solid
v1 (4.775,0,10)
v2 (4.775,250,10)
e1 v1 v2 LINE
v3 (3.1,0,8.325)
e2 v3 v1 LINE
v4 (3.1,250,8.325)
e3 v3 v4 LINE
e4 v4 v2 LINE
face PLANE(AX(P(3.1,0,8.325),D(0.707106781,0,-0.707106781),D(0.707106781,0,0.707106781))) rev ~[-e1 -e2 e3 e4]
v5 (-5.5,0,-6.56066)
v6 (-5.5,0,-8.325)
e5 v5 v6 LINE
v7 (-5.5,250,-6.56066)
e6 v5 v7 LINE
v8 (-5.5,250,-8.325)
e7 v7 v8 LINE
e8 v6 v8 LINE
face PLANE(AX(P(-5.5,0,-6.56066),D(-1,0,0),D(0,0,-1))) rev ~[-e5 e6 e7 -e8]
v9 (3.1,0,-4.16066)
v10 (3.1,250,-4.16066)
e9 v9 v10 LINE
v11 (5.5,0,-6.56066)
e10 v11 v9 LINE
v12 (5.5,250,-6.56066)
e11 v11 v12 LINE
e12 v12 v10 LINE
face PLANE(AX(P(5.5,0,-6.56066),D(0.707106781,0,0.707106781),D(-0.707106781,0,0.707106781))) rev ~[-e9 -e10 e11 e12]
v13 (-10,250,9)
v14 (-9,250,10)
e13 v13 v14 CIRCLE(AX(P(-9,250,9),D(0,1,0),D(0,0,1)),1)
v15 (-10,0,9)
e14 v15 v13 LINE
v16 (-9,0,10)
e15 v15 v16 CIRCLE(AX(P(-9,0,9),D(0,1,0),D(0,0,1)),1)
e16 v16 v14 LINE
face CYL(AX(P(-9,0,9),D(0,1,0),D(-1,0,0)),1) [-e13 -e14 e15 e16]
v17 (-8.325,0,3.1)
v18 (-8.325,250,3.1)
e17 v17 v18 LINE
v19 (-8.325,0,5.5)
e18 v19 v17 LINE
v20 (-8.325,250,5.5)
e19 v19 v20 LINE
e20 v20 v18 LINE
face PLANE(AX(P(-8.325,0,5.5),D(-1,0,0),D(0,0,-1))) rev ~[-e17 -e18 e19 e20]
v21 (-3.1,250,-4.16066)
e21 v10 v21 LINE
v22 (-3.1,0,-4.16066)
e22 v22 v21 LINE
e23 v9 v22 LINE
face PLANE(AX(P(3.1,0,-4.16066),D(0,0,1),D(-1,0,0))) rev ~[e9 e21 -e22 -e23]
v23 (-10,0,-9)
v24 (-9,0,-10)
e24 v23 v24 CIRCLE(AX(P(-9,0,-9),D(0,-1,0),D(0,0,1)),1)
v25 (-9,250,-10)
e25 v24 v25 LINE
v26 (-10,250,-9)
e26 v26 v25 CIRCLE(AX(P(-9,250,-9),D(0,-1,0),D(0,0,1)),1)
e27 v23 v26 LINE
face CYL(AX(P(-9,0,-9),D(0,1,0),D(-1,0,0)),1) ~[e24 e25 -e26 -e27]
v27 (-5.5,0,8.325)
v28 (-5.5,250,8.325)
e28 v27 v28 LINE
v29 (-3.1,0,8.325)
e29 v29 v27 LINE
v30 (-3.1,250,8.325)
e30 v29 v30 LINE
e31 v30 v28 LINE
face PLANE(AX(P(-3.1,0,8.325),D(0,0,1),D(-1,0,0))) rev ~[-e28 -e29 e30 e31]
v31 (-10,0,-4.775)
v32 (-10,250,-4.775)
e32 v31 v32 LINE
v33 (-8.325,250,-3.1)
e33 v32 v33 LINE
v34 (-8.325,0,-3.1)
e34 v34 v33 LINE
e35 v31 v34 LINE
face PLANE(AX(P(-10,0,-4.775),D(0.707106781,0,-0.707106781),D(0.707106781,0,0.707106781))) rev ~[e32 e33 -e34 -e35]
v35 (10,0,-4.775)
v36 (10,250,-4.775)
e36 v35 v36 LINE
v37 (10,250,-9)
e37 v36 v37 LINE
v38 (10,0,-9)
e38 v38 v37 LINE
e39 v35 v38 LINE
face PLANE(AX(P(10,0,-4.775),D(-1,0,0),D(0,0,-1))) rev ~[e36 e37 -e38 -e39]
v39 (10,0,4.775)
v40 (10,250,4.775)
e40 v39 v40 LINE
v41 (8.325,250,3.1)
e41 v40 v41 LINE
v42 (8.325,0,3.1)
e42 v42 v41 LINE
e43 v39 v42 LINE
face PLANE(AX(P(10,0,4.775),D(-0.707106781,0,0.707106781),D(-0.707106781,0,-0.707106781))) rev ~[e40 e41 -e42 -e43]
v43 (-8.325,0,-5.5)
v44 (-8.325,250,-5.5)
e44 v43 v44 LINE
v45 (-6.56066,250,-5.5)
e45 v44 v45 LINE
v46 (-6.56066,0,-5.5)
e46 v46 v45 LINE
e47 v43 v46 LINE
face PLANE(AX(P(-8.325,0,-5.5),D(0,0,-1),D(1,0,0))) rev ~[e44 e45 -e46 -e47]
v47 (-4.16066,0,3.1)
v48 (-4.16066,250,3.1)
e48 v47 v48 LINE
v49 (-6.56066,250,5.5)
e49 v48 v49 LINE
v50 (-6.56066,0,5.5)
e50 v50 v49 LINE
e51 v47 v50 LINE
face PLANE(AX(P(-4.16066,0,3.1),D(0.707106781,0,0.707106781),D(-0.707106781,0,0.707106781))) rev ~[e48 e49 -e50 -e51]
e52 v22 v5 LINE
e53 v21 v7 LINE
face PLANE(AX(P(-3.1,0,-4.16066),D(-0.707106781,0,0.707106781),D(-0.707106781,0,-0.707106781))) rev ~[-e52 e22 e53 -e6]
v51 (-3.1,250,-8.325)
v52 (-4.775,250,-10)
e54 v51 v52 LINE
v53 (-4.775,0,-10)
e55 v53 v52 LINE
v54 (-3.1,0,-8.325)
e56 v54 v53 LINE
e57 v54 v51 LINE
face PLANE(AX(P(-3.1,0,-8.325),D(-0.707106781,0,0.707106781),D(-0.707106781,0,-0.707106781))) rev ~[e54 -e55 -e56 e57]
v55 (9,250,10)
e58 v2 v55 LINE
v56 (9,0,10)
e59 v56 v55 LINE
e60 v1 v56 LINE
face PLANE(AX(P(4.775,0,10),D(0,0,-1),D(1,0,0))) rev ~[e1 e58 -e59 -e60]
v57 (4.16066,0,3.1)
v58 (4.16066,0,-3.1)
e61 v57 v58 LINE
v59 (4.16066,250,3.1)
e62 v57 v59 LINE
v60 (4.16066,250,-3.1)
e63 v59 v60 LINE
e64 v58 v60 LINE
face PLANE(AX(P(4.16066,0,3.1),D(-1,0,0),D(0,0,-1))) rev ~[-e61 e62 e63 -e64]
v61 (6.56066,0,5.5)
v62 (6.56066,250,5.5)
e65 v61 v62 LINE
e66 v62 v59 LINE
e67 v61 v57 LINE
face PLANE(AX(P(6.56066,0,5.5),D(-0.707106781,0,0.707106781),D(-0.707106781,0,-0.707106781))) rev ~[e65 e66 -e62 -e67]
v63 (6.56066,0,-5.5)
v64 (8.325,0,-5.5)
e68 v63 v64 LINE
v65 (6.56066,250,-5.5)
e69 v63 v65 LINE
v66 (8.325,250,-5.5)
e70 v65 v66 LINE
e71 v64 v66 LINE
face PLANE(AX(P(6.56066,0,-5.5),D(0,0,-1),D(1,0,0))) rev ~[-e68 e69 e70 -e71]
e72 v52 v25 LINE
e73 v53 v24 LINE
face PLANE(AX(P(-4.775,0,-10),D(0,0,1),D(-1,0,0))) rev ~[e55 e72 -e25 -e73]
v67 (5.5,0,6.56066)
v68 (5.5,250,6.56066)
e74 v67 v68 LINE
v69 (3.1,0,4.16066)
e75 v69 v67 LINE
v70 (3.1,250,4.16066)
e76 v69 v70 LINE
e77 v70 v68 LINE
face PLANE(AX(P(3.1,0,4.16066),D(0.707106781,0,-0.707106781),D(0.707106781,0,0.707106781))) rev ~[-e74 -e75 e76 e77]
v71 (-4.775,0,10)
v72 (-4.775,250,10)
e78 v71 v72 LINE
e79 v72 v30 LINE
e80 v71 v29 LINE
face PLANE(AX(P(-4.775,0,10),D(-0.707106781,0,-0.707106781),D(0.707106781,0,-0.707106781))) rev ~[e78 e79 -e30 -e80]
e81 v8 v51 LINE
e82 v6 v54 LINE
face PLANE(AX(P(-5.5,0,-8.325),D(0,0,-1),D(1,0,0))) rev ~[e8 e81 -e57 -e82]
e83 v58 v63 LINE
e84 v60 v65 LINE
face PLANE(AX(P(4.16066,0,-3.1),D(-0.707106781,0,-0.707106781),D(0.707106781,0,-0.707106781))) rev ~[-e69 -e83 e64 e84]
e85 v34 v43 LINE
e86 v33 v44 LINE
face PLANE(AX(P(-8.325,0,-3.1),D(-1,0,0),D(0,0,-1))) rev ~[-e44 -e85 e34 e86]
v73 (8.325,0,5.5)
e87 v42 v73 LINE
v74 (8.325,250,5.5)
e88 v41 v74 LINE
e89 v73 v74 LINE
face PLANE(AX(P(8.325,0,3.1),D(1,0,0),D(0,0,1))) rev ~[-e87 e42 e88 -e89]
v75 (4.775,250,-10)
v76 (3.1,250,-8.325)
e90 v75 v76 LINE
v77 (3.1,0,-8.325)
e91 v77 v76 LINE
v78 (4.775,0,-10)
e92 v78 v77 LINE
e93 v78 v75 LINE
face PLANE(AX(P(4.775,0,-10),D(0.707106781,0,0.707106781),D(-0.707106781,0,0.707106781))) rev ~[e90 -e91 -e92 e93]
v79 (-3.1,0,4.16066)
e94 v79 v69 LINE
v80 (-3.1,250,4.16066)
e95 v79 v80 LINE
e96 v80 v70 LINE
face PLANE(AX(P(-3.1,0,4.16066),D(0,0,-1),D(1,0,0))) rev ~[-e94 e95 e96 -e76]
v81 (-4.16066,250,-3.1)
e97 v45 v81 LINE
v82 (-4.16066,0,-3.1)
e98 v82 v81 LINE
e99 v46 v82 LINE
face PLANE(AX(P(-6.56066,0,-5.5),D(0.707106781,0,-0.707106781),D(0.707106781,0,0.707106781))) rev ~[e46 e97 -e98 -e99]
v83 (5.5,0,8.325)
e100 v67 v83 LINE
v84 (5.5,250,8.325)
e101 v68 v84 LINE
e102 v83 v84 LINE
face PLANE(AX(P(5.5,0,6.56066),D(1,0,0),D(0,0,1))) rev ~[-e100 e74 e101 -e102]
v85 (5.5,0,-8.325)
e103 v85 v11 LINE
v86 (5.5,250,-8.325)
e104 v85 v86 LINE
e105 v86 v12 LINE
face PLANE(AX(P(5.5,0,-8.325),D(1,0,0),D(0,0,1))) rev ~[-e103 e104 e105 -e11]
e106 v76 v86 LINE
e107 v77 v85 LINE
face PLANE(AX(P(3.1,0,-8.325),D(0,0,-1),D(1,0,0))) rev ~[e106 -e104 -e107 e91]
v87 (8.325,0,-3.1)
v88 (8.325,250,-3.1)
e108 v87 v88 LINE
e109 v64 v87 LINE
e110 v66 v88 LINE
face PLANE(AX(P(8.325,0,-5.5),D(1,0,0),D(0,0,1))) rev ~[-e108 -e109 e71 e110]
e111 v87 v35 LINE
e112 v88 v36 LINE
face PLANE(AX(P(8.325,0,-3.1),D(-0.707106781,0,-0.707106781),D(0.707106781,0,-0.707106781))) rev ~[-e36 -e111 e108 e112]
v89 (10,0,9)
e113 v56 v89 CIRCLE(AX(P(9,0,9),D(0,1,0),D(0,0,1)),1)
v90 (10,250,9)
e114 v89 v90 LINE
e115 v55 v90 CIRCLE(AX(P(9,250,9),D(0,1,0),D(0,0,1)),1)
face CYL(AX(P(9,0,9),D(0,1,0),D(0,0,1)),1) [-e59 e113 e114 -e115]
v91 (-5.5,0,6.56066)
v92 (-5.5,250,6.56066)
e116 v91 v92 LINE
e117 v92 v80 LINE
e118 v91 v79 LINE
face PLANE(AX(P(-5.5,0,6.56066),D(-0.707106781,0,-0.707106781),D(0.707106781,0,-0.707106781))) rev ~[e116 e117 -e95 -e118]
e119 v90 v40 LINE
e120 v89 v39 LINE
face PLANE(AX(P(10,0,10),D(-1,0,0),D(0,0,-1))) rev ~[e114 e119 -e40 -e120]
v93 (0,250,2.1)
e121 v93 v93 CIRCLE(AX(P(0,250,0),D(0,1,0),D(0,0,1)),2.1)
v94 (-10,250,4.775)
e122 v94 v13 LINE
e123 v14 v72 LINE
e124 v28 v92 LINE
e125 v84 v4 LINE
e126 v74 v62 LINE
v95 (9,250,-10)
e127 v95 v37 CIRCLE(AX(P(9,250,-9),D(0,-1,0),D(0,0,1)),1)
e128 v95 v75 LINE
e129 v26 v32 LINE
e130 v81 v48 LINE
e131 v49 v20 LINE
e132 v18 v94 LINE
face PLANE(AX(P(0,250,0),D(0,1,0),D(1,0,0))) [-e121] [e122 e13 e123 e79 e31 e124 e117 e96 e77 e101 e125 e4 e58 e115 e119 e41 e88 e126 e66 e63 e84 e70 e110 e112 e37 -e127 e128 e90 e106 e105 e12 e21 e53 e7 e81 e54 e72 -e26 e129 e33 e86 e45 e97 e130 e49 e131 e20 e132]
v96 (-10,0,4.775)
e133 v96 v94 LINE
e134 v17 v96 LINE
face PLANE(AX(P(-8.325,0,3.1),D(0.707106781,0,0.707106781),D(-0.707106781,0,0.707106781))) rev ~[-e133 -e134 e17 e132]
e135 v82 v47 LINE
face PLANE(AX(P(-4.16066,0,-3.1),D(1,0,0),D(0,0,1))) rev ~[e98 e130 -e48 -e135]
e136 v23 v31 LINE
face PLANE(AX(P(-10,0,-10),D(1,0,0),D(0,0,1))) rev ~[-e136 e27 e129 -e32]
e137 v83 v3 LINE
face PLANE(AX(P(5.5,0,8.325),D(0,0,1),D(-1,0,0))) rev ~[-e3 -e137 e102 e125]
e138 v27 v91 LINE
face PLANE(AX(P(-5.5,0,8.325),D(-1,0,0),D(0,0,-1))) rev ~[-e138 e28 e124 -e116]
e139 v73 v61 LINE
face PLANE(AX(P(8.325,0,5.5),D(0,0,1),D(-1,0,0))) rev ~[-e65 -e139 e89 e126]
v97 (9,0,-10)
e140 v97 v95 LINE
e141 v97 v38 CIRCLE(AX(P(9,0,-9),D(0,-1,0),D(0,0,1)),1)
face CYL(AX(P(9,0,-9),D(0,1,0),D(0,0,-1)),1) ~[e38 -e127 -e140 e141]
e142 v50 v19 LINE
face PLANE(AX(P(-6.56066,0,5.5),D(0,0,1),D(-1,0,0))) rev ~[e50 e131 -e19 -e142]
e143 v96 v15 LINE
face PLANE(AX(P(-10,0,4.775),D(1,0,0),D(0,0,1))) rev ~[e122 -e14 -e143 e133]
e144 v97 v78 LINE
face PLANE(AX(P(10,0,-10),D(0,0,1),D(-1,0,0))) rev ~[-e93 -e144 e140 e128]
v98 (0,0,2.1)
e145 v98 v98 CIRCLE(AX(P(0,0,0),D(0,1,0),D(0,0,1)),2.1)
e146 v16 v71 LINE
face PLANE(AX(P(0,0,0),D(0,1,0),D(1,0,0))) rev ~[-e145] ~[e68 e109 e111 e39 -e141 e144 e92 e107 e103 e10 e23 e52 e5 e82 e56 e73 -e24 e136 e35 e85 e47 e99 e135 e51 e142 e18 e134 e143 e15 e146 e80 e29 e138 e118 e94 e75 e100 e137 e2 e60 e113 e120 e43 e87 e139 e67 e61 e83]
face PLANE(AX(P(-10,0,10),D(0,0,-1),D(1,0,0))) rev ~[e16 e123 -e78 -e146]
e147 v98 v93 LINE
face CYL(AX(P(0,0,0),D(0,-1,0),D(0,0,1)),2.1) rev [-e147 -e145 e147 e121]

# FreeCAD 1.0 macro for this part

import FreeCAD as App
import Part
import Sketcher
from FreeCAD import Vector


def edges_at(feature, points):
    """Names of the edges that pass closest to the given points."""
    edges = feature.Shape.Edges
    near = lambda p: min(range(len(edges)), key=lambda i: edges[i].distToShape(Part.Vertex(*p))[0])
    return sorted({f"Edge{near(p) + 1}" for p in points})

doc = App.newDocument("Part")
body = doc.addObject("PartDesign::Body", "Body")

sketch1 = body.newObject("Sketcher::SketchObject", "Sketch")
sketch1.AttachmentSupport = (doc.getObject("XZ_Plane"), [""])
sketch1.MapMode = "FlatFace"
sketch1.addGeometry(Part.LineSegment(Vector(-8.3, -3.1, 0), Vector(-8.3, -5.5, 0)), False)
sketch1.addGeometry(Part.LineSegment(Vector(-8.3, -5.5, 0), Vector(-6.6, -5.5, 0)), False)
sketch1.addGeometry(Part.LineSegment(Vector(-6.6, -5.5, 0), Vector(-4.2, -3.1, 0)), False)
sketch1.addGeometry(Part.LineSegment(Vector(-4.2, -3.1, 0), Vector(-4.2, 3.1, 0)), False)
sketch1.addGeometry(Part.LineSegment(Vector(-4.2, 3.1, 0), Vector(-6.6, 5.5, 0)), False)
sketch1.addGeometry(Part.LineSegment(Vector(-6.6, 5.5, 0), Vector(-8.3, 5.5, 0)), False)
sketch1.addGeometry(Part.LineSegment(Vector(-8.3, 5.5, 0), Vector(-8.3, 3.1, 0)), False)
sketch1.addGeometry(Part.LineSegment(Vector(-8.3, 3.1, 0), Vector(-10, 4.8, 0)), False)
sketch1.addGeometry(Part.LineSegment(Vector(-10, 4.8, 0), Vector(-10, 10, 0)), False)
sketch1.addGeometry(Part.LineSegment(Vector(-10, 10, 0), Vector(-4.8, 10, 0)), False)
sketch1.addGeometry(Part.LineSegment(Vector(-4.8, 10, 0), Vector(-3.1, 8.3, 0)), False)
sketch1.addGeometry(Part.LineSegment(Vector(-3.1, 8.3, 0), Vector(-5.5, 8.3, 0)), False)
sketch1.addGeometry(Part.LineSegment(Vector(-5.5, 8.3, 0), Vector(-5.5, 6.6, 0)), False)
sketch1.addGeometry(Part.LineSegment(Vector(-5.5, 6.6, 0), Vector(-3.1, 4.2, 0)), False)
sketch1.addGeometry(Part.LineSegment(Vector(-3.1, 4.2, 0), Vector(3.1, 4.2, 0)), False)
sketch1.addGeometry(Part.LineSegment(Vector(3.1, 4.2, 0), Vector(5.5, 6.6, 0)), False)
sketch1.addGeometry(Part.LineSegment(Vector(5.5, 6.6, 0), Vector(5.5, 8.3, 0)), False)
sketch1.addGeometry(Part.LineSegment(Vector(5.5, 8.3, 0), Vector(3.1, 8.3, 0)), False)
sketch1.addGeometry(Part.LineSegment(Vector(3.1, 8.3, 0), Vector(4.8, 10, 0)), False)
sketch1.addGeometry(Part.LineSegment(Vector(4.8, 10, 0), Vector(10, 10, 0)), False)
sketch1.addGeometry(Part.LineSegment(Vector(10, 10, 0), Vector(10, 4.8, 0)), False)
sketch1.addGeometry(Part.LineSegment(Vector(10, 4.8, 0), Vector(8.3, 3.1, 0)), False)
sketch1.addGeometry(Part.LineSegment(Vector(8.3, 3.1, 0), Vector(8.3, 5.5, 0)), False)
sketch1.addGeometry(Part.LineSegment(Vector(8.3, 5.5, 0), Vector(6.6, 5.5, 0)), False)
sketch1.addGeometry(Part.LineSegment(Vector(6.6, 5.5, 0), Vector(4.2, 3.1, 0)), False)
sketch1.addGeometry(Part.LineSegment(Vector(4.2, 3.1, 0), Vector(4.2, -3.1, 0)), False)
sketch1.addGeometry(Part.LineSegment(Vector(4.2, -3.1, 0), Vector(6.6, -5.5, 0)), False)
sketch1.addGeometry(Part.LineSegment(Vector(6.6, -5.5, 0), Vector(8.3, -5.5, 0)), False)
sketch1.addGeometry(Part.LineSegment(Vector(8.3, -5.5, 0), Vector(8.3, -3.1, 0)), False)
sketch1.addGeometry(Part.LineSegment(Vector(8.3, -3.1, 0), Vector(10, -4.8, 0)), False)
sketch1.addGeometry(Part.LineSegment(Vector(10, -4.8, 0), Vector(10, -10, 0)), False)
sketch1.addGeometry(Part.LineSegment(Vector(10, -10, 0), Vector(4.8, -10, 0)), False)
sketch1.addGeometry(Part.LineSegment(Vector(4.8, -10, 0), Vector(3.1, -8.3, 0)), False)
sketch1.addGeometry(Part.LineSegment(Vector(3.1, -8.3, 0), Vector(5.5, -8.3, 0)), False)
sketch1.addGeometry(Part.LineSegment(Vector(5.5, -8.3, 0), Vector(5.5, -6.6, 0)), False)
sketch1.addGeometry(Part.LineSegment(Vector(5.5, -6.6, 0), Vector(3.1, -4.2, 0)), False)
sketch1.addGeometry(Part.LineSegment(Vector(3.1, -4.2, 0), Vector(-3.1, -4.2, 0)), False)
sketch1.addGeometry(Part.LineSegment(Vector(-3.1, -4.2, 0), Vector(-5.5, -6.6, 0)), False)
sketch1.addGeometry(Part.LineSegment(Vector(-5.5, -6.6, 0), Vector(-5.5, -8.3, 0)), False)
sketch1.addGeometry(Part.LineSegment(Vector(-5.5, -8.3, 0), Vector(-3.1, -8.3, 0)), False)
sketch1.addGeometry(Part.LineSegment(Vector(-3.1, -8.3, 0), Vector(-4.8, -10, 0)), False)
sketch1.addGeometry(Part.LineSegment(Vector(-4.8, -10, 0), Vector(-10, -10, 0)), False)
sketch1.addGeometry(Part.LineSegment(Vector(-10, -10, 0), Vector(-10, -4.8, 0)), False)
sketch1.addGeometry(Part.LineSegment(Vector(-10, -4.8, 0), Vector(-8.3, -3.1, 0)), False)
sketch1.addGeometry(Part.Circle(Vector(0, 0, 0), Vector(0, 0, 1), 2.1), False)
sketch1.addConstraint(Sketcher.Constraint("Coincident", 0, 2, 1, 1))
sketch1.addConstraint(Sketcher.Constraint("Coincident", 1, 2, 2, 1))
sketch1.addConstraint(Sketcher.Constraint("Coincident", 2, 2, 3, 1))
sketch1.addConstraint(Sketcher.Constraint("Coincident", 3, 2, 4, 1))
sketch1.addConstraint(Sketcher.Constraint("Coincident", 4, 2, 5, 1))
sketch1.addConstraint(Sketcher.Constraint("Coincident", 5, 2, 6, 1))
sketch1.addConstraint(Sketcher.Constraint("Coincident", 6, 2, 7, 1))
sketch1.addConstraint(Sketcher.Constraint("Coincident", 7, 2, 8, 1))
sketch1.addConstraint(Sketcher.Constraint("Coincident", 8, 2, 9, 1))
sketch1.addConstraint(Sketcher.Constraint("Coincident", 9, 2, 10, 1))
sketch1.addConstraint(Sketcher.Constraint("Coincident", 10, 2, 11, 1))
sketch1.addConstraint(Sketcher.Constraint("Coincident", 11, 2, 12, 1))
sketch1.addConstraint(Sketcher.Constraint("Coincident", 12, 2, 13, 1))
sketch1.addConstraint(Sketcher.Constraint("Coincident", 13, 2, 14, 1))
sketch1.addConstraint(Sketcher.Constraint("Coincident", 14, 2, 15, 1))
sketch1.addConstraint(Sketcher.Constraint("Coincident", 15, 2, 16, 1))
sketch1.addConstraint(Sketcher.Constraint("Coincident", 16, 2, 17, 1))
sketch1.addConstraint(Sketcher.Constraint("Coincident", 17, 2, 18, 1))
sketch1.addConstraint(Sketcher.Constraint("Coincident", 18, 2, 19, 1))
sketch1.addConstraint(Sketcher.Constraint("Coincident", 19, 2, 20, 1))
sketch1.addConstraint(Sketcher.Constraint("Coincident", 20, 2, 21, 1))
sketch1.addConstraint(Sketcher.Constraint("Coincident", 21, 2, 22, 1))
sketch1.addConstraint(Sketcher.Constraint("Coincident", 22, 2, 23, 1))
sketch1.addConstraint(Sketcher.Constraint("Coincident", 23, 2, 24, 1))
sketch1.addConstraint(Sketcher.Constraint("Coincident", 24, 2, 25, 1))
sketch1.addConstraint(Sketcher.Constraint("Coincident", 25, 2, 26, 1))
sketch1.addConstraint(Sketcher.Constraint("Coincident", 26, 2, 27, 1))
sketch1.addConstraint(Sketcher.Constraint("Coincident", 27, 2, 28, 1))
sketch1.addConstraint(Sketcher.Constraint("Coincident", 28, 2, 29, 1))
sketch1.addConstraint(Sketcher.Constraint("Coincident", 29, 2, 30, 1))
sketch1.addConstraint(Sketcher.Constraint("Coincident", 30, 2, 31, 1))
sketch1.addConstraint(Sketcher.Constraint("Coincident", 31, 2, 32, 1))
sketch1.addConstraint(Sketcher.Constraint("Coincident", 32, 2, 33, 1))
sketch1.addConstraint(Sketcher.Constraint("Coincident", 33, 2, 34, 1))
sketch1.addConstraint(Sketcher.Constraint("Coincident", 34, 2, 35, 1))
sketch1.addConstraint(Sketcher.Constraint("Coincident", 35, 2, 36, 1))
sketch1.addConstraint(Sketcher.Constraint("Coincident", 36, 2, 37, 1))
sketch1.addConstraint(Sketcher.Constraint("Coincident", 37, 2, 38, 1))
sketch1.addConstraint(Sketcher.Constraint("Coincident", 38, 2, 39, 1))
sketch1.addConstraint(Sketcher.Constraint("Coincident", 39, 2, 40, 1))
sketch1.addConstraint(Sketcher.Constraint("Coincident", 40, 2, 41, 1))
sketch1.addConstraint(Sketcher.Constraint("Coincident", 41, 2, 42, 1))
sketch1.addConstraint(Sketcher.Constraint("Coincident", 42, 2, 43, 1))
sketch1.addConstraint(Sketcher.Constraint("Coincident", 43, 2, 0, 1))
sketch1.addConstraint(Sketcher.Constraint("Vertical", 0))
sketch1.addConstraint(Sketcher.Constraint("Horizontal", 1))
sketch1.addConstraint(Sketcher.Constraint("Vertical", 3))
sketch1.addConstraint(Sketcher.Constraint("Horizontal", 5))
sketch1.addConstraint(Sketcher.Constraint("Vertical", 6))
sketch1.addConstraint(Sketcher.Constraint("Vertical", 8))
sketch1.addConstraint(Sketcher.Constraint("Horizontal", 9))
sketch1.addConstraint(Sketcher.Constraint("Horizontal", 11))
sketch1.addConstraint(Sketcher.Constraint("Vertical", 12))
sketch1.addConstraint(Sketcher.Constraint("Horizontal", 14))
sketch1.addConstraint(Sketcher.Constraint("Vertical", 16))
sketch1.addConstraint(Sketcher.Constraint("Horizontal", 17))
sketch1.addConstraint(Sketcher.Constraint("Horizontal", 19))
sketch1.addConstraint(Sketcher.Constraint("Vertical", 20))
sketch1.addConstraint(Sketcher.Constraint("Vertical", 22))
sketch1.addConstraint(Sketcher.Constraint("Horizontal", 23))
sketch1.addConstraint(Sketcher.Constraint("Vertical", 25))
sketch1.addConstraint(Sketcher.Constraint("Horizontal", 27))
sketch1.addConstraint(Sketcher.Constraint("Vertical", 28))
sketch1.addConstraint(Sketcher.Constraint("Vertical", 30))
sketch1.addConstraint(Sketcher.Constraint("Horizontal", 31))
sketch1.addConstraint(Sketcher.Constraint("Horizontal", 33))
sketch1.addConstraint(Sketcher.Constraint("Vertical", 34))
sketch1.addConstraint(Sketcher.Constraint("Horizontal", 36))
sketch1.addConstraint(Sketcher.Constraint("Vertical", 38))
sketch1.addConstraint(Sketcher.Constraint("Horizontal", 39))
sketch1.addConstraint(Sketcher.Constraint("Horizontal", 41))
sketch1.addConstraint(Sketcher.Constraint("Vertical", 42))
sketch1.addConstraint(Sketcher.Constraint("Coincident", 44, 3, -1, 1))
sketch1.addConstraint(Sketcher.Constraint("Symmetric", 0, 2, 22, 2, -1, 1))
sketch1.addConstraint(Sketcher.Constraint("Symmetric", 2, 2, 24, 2, -1, 1))
sketch1.addConstraint(Sketcher.Constraint("Symmetric", 4, 2, 26, 2, -1, 1))
sketch1.addConstraint(Sketcher.Constraint("Symmetric", 6, 2, 28, 2, -1, 1))
sketch1.addConstraint(Sketcher.Constraint("Symmetric", 7, 2, 29, 2, -1, 1))
sketch1.addConstraint(Sketcher.Constraint("Symmetric", 9, 2, 31, 2, -1, 1))
sketch1.addConstraint(Sketcher.Constraint("Symmetric", 10, 2, 32, 2, -1, 1))
sketch1.addConstraint(Sketcher.Constraint("Symmetric", 12, 2, 34, 2, -1, 1))
sketch1.addConstraint(Sketcher.Constraint("Symmetric", 13, 2, 35, 2, -1, 1))
sketch1.addConstraint(Sketcher.Constraint("Symmetric", 15, 2, 37, 2, -1, 1))
sketch1.addConstraint(Sketcher.Constraint("Symmetric", 17, 2, 39, 2, -1, 1))
sketch1.addConstraint(Sketcher.Constraint("Symmetric", 18, 2, 40, 2, -1, 1))
sketch1.addConstraint(Sketcher.Constraint("Symmetric", 20, 2, 42, 2, -1, 1))
sketch1.addConstraint(Sketcher.Constraint("Symmetric", 12, 2, 15, 2, -2))
sketch1.addConstraint(Sketcher.Constraint("Symmetric", 10, 2, 17, 2, -2))
sketch1.addConstraint(Sketcher.Constraint("Symmetric", 9, 2, 18, 2, -2))
sketch1.addConstraint(Sketcher.Constraint("Symmetric", 7, 2, 20, 2, -2))
sketch1.addConstraint(Sketcher.Constraint("Symmetric", 6, 2, 21, 2, -2))
sketch1.addConstraint(Sketcher.Constraint("Symmetric", 4, 2, 23, 2, -2))
sketch1.addConstraint(Sketcher.Constraint("Perpendicular", 2, 4))
sketch1.addConstraint(Sketcher.Constraint("Parallel", 4, 7))
sketch1.addConstraint(Sketcher.Constraint("Parallel", 7, 10))
sketch1.addConstraint(Sketcher.Constraint("Parallel", 10, 13))
sketch1.addConstraint(Sketcher.Constraint("Perpendicular", 13, 15))
sketch1.addConstraint(Sketcher.Constraint("Parallel", 15, 18))
sketch1.addConstraint(Sketcher.Constraint("Parallel", 21, 24))
sketch1.addConstraint(Sketcher.Constraint("Perpendicular", 24, 26))
sketch1.addConstraint(Sketcher.Constraint("Perpendicular", 35, 37))
sketch1.addConstraint(Sketcher.Constraint("Parallel", 40, 43))
sketch1.addConstraint(Sketcher.Constraint("Horizontal", 3, 2, 6, 2))
sketch1.addConstraint(Sketcher.Constraint("Vertical", 10, 2, 13, 2))
sketch1.addConstraint(Sketcher.Constraint("Equal", 39, 0))
sketch1.addConstraint(Sketcher.Constraint("Equal", 36, 3))
sketch1.addConstraint(Sketcher.Constraint("Equal", 41, 8))
sketch1.addConstraint(Sketcher.Constraint("Equal", 27, 12))
sketch1.addConstraint(Sketcher.Constraint("Equal", 7, 10))
sketch1.addConstraint(Sketcher.Constraint("Diameter", 44, 4.2))
sketch1.addConstraint(Sketcher.Constraint("DistanceX", 11, 2, 11, 1, 2.4))
sketch1.addConstraint(Sketcher.Constraint("DistanceX", 14, 1, 14, 2, 6.2))
sketch1.addConstraint(Sketcher.Constraint("DistanceX", 7, 2, -1, 1, 10.0))
sketch1.addConstraint(Sketcher.Constraint("DistanceX", 9, 1, 9, 2, 5.225))
sketch1.addConstraint(Sketcher.Constraint("DistanceX", 1, 1, 1, 2, 1.76434))
pad1 = body.newObject("PartDesign::Pad", "Pad")
pad1.Profile = sketch1
pad1.Length = 250
pad1.Reversed = True
doc.recompute()

fillet = body.newObject("PartDesign::Fillet", "Fillet")
fillet.Base = (pad1, edges_at(pad1, [
    (10, 125, -10),
    (10, 125, 10),
    (-10, 125, 10),
    (-10, 125, -10),
]))
fillet.Radius = 1

doc.recompute()
